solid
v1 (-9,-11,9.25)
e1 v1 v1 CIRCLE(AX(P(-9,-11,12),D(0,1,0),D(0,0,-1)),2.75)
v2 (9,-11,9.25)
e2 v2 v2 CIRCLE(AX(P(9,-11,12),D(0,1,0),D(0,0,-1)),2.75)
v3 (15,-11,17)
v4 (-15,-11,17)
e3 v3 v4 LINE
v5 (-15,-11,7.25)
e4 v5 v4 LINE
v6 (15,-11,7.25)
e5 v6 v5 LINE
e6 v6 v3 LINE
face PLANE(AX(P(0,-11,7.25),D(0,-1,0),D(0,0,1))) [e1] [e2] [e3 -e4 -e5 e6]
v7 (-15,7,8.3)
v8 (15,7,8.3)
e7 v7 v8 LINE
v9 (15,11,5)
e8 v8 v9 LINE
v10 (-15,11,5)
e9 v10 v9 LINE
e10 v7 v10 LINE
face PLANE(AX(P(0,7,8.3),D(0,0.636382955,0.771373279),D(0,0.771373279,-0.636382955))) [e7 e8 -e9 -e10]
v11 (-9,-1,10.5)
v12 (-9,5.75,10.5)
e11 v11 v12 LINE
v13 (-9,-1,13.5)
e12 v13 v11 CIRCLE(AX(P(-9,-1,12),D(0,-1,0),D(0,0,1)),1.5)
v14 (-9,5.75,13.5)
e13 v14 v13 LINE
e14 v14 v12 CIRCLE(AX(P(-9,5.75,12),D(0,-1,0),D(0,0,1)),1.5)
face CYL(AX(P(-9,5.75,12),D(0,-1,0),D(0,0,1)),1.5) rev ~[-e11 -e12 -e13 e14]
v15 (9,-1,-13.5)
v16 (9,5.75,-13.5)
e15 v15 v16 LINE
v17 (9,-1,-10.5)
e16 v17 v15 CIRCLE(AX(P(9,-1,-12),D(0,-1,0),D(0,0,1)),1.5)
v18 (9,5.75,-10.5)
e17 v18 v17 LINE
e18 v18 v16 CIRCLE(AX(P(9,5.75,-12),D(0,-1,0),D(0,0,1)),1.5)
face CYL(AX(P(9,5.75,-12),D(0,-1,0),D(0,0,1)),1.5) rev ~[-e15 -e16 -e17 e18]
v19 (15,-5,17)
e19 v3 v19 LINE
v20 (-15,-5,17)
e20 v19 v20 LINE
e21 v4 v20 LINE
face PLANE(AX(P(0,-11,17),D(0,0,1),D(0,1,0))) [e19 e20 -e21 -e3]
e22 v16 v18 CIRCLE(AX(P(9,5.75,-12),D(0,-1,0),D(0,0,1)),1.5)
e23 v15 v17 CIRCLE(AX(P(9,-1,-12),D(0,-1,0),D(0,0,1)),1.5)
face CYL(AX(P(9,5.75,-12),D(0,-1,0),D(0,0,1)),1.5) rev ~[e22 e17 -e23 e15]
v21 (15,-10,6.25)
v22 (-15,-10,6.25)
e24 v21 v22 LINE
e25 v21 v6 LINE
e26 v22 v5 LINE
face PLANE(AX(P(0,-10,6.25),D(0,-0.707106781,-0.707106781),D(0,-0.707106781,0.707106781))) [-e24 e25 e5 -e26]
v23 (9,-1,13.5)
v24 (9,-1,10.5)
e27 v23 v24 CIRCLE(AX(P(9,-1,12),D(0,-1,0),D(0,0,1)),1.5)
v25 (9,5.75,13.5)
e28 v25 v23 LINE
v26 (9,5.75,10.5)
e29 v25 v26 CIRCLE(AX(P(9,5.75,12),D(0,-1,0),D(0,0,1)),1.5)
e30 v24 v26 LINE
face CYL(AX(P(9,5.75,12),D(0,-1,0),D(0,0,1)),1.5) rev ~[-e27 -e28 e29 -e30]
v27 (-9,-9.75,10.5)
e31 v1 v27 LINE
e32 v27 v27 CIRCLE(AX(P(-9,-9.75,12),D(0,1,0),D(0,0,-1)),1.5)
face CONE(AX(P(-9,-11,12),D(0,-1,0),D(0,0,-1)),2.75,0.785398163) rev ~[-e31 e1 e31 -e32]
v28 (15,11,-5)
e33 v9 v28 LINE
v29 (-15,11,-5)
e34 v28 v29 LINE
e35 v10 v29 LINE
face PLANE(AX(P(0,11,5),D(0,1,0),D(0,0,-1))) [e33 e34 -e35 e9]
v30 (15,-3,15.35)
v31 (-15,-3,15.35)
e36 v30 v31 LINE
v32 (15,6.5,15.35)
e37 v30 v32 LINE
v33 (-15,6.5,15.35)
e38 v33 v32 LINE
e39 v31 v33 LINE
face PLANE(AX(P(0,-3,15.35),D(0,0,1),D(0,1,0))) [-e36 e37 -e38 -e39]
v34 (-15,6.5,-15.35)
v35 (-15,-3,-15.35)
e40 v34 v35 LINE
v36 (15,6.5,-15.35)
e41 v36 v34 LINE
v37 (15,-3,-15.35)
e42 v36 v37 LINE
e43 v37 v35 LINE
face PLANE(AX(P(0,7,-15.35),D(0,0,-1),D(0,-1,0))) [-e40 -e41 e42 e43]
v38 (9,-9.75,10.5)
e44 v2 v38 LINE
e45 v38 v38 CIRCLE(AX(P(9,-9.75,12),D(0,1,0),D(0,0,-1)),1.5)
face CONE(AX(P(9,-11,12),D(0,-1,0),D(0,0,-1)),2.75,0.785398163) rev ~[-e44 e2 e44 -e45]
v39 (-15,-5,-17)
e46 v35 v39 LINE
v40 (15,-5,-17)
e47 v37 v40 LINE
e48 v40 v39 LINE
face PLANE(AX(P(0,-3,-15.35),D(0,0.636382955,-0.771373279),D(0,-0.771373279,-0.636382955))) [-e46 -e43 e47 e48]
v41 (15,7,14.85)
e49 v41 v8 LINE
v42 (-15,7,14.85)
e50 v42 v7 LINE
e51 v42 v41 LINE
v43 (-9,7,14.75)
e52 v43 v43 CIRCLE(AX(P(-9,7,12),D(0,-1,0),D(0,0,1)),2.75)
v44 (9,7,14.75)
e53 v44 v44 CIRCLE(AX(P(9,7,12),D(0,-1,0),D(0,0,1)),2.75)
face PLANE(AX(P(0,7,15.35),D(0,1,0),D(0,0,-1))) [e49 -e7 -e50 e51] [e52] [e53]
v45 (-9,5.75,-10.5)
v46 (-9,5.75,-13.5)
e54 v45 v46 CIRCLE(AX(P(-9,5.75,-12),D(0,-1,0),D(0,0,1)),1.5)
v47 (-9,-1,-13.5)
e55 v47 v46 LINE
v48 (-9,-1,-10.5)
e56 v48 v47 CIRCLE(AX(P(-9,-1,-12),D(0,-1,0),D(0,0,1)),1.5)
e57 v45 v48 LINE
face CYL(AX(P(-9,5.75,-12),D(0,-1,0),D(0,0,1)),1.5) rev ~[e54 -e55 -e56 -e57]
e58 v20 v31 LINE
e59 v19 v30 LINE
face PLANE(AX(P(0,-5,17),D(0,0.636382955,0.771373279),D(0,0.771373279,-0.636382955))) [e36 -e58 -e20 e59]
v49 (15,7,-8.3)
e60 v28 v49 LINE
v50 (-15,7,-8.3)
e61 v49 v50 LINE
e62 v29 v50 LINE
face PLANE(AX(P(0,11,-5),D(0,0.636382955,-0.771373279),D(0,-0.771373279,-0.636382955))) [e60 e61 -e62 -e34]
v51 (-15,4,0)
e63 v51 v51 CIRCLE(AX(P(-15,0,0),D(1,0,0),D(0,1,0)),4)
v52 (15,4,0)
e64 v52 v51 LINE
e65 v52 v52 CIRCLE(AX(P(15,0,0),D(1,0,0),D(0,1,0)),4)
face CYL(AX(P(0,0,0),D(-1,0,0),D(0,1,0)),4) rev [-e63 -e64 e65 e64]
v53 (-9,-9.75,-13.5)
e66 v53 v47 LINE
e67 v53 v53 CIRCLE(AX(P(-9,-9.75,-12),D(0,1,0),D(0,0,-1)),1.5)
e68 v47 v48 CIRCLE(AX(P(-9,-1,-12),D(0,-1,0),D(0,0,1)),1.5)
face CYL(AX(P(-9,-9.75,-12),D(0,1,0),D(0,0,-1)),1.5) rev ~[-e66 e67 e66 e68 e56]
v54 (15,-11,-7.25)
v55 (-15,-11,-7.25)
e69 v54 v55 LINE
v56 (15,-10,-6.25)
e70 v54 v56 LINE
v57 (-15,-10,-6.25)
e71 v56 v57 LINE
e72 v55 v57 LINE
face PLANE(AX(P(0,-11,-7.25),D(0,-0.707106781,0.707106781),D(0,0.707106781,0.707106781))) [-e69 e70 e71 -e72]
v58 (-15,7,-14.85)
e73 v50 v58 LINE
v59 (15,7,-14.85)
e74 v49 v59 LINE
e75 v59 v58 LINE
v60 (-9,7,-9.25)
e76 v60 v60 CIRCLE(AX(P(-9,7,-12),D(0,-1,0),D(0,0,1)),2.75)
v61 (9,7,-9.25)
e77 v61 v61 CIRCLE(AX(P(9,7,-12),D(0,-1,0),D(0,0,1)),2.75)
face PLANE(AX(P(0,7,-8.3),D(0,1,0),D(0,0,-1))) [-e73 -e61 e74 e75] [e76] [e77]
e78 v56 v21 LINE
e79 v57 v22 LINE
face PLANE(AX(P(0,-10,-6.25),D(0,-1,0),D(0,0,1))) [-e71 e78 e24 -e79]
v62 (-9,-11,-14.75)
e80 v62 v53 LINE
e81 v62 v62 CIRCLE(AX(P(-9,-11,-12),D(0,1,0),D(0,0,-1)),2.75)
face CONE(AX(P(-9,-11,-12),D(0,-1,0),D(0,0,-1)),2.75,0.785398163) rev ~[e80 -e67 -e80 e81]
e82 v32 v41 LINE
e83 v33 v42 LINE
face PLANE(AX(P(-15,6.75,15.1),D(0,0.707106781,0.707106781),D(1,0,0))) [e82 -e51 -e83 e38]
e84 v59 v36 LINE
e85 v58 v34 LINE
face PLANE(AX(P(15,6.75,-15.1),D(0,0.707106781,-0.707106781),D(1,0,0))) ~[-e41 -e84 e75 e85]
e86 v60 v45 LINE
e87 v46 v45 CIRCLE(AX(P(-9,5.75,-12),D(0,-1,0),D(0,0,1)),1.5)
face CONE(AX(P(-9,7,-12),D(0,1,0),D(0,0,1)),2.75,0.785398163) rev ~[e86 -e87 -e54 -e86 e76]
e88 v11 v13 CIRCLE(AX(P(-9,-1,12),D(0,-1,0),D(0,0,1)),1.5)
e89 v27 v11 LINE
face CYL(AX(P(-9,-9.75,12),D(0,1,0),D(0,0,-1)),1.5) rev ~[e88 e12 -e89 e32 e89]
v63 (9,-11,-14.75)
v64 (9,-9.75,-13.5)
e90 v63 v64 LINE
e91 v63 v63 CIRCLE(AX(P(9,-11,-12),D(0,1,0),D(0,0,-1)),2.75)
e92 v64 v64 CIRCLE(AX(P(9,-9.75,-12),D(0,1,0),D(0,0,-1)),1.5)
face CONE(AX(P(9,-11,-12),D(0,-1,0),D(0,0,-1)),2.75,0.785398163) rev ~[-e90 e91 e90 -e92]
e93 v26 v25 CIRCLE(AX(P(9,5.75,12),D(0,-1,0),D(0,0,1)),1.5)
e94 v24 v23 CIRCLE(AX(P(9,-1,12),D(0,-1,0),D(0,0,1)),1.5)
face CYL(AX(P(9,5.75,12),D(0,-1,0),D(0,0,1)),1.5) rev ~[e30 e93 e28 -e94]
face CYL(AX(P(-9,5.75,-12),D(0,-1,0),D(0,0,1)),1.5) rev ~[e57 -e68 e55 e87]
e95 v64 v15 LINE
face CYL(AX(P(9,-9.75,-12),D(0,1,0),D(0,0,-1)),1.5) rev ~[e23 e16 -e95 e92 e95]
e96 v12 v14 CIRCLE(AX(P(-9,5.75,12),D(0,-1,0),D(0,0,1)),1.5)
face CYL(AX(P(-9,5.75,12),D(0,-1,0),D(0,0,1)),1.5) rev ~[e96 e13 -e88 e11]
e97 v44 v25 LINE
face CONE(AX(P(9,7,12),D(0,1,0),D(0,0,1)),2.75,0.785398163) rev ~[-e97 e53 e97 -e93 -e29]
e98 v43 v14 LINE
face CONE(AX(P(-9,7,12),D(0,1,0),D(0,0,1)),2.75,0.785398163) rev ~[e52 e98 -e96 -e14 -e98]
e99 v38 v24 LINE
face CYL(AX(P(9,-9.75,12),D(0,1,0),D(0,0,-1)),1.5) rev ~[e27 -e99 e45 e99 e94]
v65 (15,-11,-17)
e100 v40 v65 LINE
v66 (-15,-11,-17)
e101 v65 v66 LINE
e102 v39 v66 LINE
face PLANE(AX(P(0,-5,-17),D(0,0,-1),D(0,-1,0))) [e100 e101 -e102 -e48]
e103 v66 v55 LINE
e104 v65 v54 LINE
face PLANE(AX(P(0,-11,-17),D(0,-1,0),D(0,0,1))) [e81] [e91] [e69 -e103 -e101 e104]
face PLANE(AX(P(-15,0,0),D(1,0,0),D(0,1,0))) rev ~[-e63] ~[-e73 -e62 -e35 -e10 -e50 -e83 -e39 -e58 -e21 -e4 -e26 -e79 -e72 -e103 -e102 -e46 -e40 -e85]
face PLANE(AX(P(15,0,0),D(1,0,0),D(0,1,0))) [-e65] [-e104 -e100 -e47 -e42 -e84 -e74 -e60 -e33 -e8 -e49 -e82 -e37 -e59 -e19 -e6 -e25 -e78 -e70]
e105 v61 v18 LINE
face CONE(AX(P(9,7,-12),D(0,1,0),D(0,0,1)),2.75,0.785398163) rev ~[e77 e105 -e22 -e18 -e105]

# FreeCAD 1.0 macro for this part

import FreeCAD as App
import Part
import Sketcher
Q = App.Units.Quantity


def edges_at(feature, points):
    """Names of the edges that pass closest to the given points."""
    edges = feature.Shape.Edges
    near = lambda p: min(range(len(edges)), key=lambda i: edges[i].distToShape(Part.Vertex(*p))[0])
    return sorted({f"Edge{near(p) + 1}" for p in points})

doc = App.newDocument("Part")
params = doc.addObject("Spreadsheet::Sheet", "Params")
for row, (alias, value) in enumerate([
    ("sketch1_diameter", "8 mm"),
    ("sketch1_width", "10 mm"),
    ("sketch1_width2", "6 mm"),
    ("sketch1_height", "12.5 mm"),
    ("sketch1_height2", "7.05 mm"),
    ("pad1_length", "30 mm"),
    ("sketch2_diameter", "3 mm"),
    ("hole_diameter", "3 mm"),
    ("hole_depth", "8 mm"),
    ("hole_csink_diameter", "5.5 mm"),
    ("sketch3_diameter", "3 mm"),
    ("hole2_diameter", "3 mm"),
    ("hole2_csink_diameter", "5.5 mm"),
    ("chamfer_size", "0.5 mm"),
], start=1):
    params.set(f"A{row}", alias)
    params.set(f"B{row}", "=" + value)
    params.setAlias(f"B{row}", alias)

body = doc.addObject("PartDesign::Body", "Body")

# Sketch on YZ plane
sketch1 = doc.addObject("Sketcher::SketchObject", "Sketch")
body.addObject(sketch1)
sketch1.AttachmentSupport = (doc.YZ_Plane, [""])
sketch1.MapMode = "FlatFace"
sketch1.addGeometry([
    Part.LineSegment(App.Vector(11, -5, 0), App.Vector(11, 5, 0)),  # 0
    Part.LineSegment(App.Vector(11, 5, 0), App.Vector(7, 8.3, 0)),  # 1
    Part.LineSegment(App.Vector(7, 8.3, 0), App.Vector(7, 15.3, 0)),  # 2
    Part.LineSegment(App.Vector(7, 15.3, 0), App.Vector(-3, 15.3, 0)),  # 3
    Part.LineSegment(App.Vector(-3, 15.3, 0), App.Vector(-5, 17, 0)),  # 4
    Part.LineSegment(App.Vector(-5, 17, 0), App.Vector(-11, 17, 0)),  # 5
    Part.LineSegment(App.Vector(-11, 17, 0), App.Vector(-11, 7.2, 0)),  # 6
    Part.LineSegment(App.Vector(-11, 7.2, 0), App.Vector(-10, 6.2, 0)),  # 7
    Part.LineSegment(App.Vector(-10, 6.2, 0), App.Vector(-10, -6.2, 0)),  # 8
    Part.LineSegment(App.Vector(-10, -6.2, 0), App.Vector(-11, -7.2, 0)),  # 9
    Part.LineSegment(App.Vector(-11, -7.2, 0), App.Vector(-11, -17, 0)),  # 10
    Part.LineSegment(App.Vector(-11, -17, 0), App.Vector(-5, -17, 0)),  # 11
    Part.LineSegment(App.Vector(-5, -17, 0), App.Vector(-3, -15.3, 0)),  # 12
    Part.LineSegment(App.Vector(-3, -15.3, 0), App.Vector(7, -15.3, 0)),  # 13
    Part.LineSegment(App.Vector(7, -15.3, 0), App.Vector(7, -8.3, 0)),  # 14
    Part.LineSegment(App.Vector(7, -8.3, 0), App.Vector(11, -5, 0)),  # 15
    Part.Circle(App.Vector(0, 0, 0), App.Vector(0, 0, 1), 4),  # 16
], False)
sketch1.addConstraint([
    Sketcher.Constraint("Coincident", 0, 2, 1, 1),
    Sketcher.Constraint("Coincident", 1, 2, 2, 1),
    Sketcher.Constraint("Coincident", 2, 2, 3, 1),
    Sketcher.Constraint("Coincident", 3, 2, 4, 1),
    Sketcher.Constraint("Coincident", 4, 2, 5, 1),
    Sketcher.Constraint("Coincident", 5, 2, 6, 1),
    Sketcher.Constraint("Coincident", 6, 2, 7, 1),
    Sketcher.Constraint("Coincident", 7, 2, 8, 1),
    Sketcher.Constraint("Coincident", 8, 2, 9, 1),
    Sketcher.Constraint("Coincident", 9, 2, 10, 1),
    Sketcher.Constraint("Coincident", 10, 2, 11, 1),
    Sketcher.Constraint("Coincident", 11, 2, 12, 1),
    Sketcher.Constraint("Coincident", 12, 2, 13, 1),
    Sketcher.Constraint("Coincident", 13, 2, 14, 1),
    Sketcher.Constraint("Coincident", 14, 2, 15, 1),
    Sketcher.Constraint("Coincident", 15, 2, 0, 1),
    Sketcher.Constraint("Vertical", 0),
    Sketcher.Constraint("Vertical", 2),
    Sketcher.Constraint("Horizontal", 3),
    Sketcher.Constraint("Horizontal", 5),
    Sketcher.Constraint("Vertical", 6),
    Sketcher.Constraint("Vertical", 8),
    Sketcher.Constraint("Vertical", 10),
    Sketcher.Constraint("Horizontal", 11),
    Sketcher.Constraint("Horizontal", 13),
    Sketcher.Constraint("Vertical", 14),
    Sketcher.Constraint("Coincident", 16, 3, -1, 1),
    Sketcher.Constraint("Symmetric", 6, 2, 9, 2, -1),
    Sketcher.Constraint("Symmetric", 4, 2, 11, 2, -1),
    Sketcher.Constraint("Symmetric", 3, 2, 12, 2, -1),
    Sketcher.Constraint("Symmetric", 1, 2, 14, 2, -1),
    Sketcher.Constraint("Parallel", 1, 4),
    Sketcher.Constraint("Perpendicular", 7, 9),
    Sketcher.Constraint("Parallel", 12, 15),
    Sketcher.Constraint("Equal", 13, 0),
    Sketcher.Constraint("Equal", 7, 9),
    Sketcher.Constraint("Diameter", 16, Q("8 mm")),
    Sketcher.Constraint("DistanceX", 3, 2, 3, 1, Q("10 mm")),
    Sketcher.Constraint("DistanceX", 5, 2, 5, 1, Q("6 mm")),
    Sketcher.Constraint("DistanceY", 8, 2, 8, 1, Q("12.5 mm")),
    Sketcher.Constraint("DistanceX", -1, 1, 0, 2, Q("11 mm")),
    Sketcher.Constraint("DistanceX", 5, 2, -1, 1, Q("11 mm")),
    Sketcher.Constraint("DistanceX", 7, 2, -1, 1, Q("10 mm")),
    Sketcher.Constraint("DistanceX", 5, 2, 3, 2, Q("8 mm")),
    Sketcher.Constraint("DistanceY", -1, 1, 4, 2, Q("17 mm")),
    Sketcher.Constraint("DistanceY", 2, 1, 2, 2, Q("7.05 mm")),
])
sketch1.setExpression("Constraints[36]", "Params.sketch1_diameter")
sketch1.setExpression("Constraints[37]", "Params.sketch1_width")
sketch1.setExpression("Constraints[38]", "Params.sketch1_width2")
sketch1.setExpression("Constraints[39]", "Params.sketch1_height")
sketch1.setExpression("Constraints[45]", "Params.sketch1_height2")
pad1 = doc.addObject("PartDesign::Pad", "Pad")
body.addObject(pad1)
pad1.Profile = sketch1
pad1.setExpression("Length", "Params.pad1_length")
pad1.Midplane = True

# Sketch on XZ plane
sketch2 = doc.addObject("Sketcher::SketchObject", "Sketch001")
body.addObject(sketch2)
sketch2.AttachmentSupport = (doc.XZ_Plane, [""])
sketch2.MapMode = "FlatFace"
sketch2.AttachmentOffset = App.Placement(App.Vector(0, 0, -7), App.Rotation())
sketch2.addGeometry([
    Part.Circle(App.Vector(-9, 12, 0), App.Vector(0, 0, 1), 1.5),
    Part.Circle(App.Vector(-9, -12, 0), App.Vector(0, 0, 1), 1.5),
    Part.Circle(App.Vector(9, -12, 0), App.Vector(0, 0, 1), 1.5),
    Part.Circle(App.Vector(9, 12, 0), App.Vector(0, 0, 1), 1.5),
], False)
sketch2.addConstraint([
    Sketcher.Constraint("Equal", 0, 1),
    Sketcher.Constraint("Equal", 1, 2),
    Sketcher.Constraint("Equal", 2, 3),
    Sketcher.Constraint("Symmetric", 0, 3, 2, 3, -1, 1),
    Sketcher.Constraint("Symmetric", 1, 3, 3, 3, -1, 1),
    Sketcher.Constraint("Symmetric", 1, 3, 2, 3, -2),
    Sketcher.Constraint("Diameter", 0, Q("3 mm")),
    Sketcher.Constraint("DistanceX", 0, 3, -1, 1, Q("9 mm")),
    Sketcher.Constraint("DistanceY", -1, 1, 0, 3, Q("12 mm")),
])
sketch2.setExpression("Constraints[6]", "Params.sketch2_diameter")
doc.recompute()
hole = doc.addObject("PartDesign::Hole", "Hole")
body.addObject(hole)
hole.Profile = sketch2
hole.ThreadType = "None"
hole.setExpression("Diameter", "Params.hole_diameter")
hole.DepthType = "Dimension"
hole.setExpression("Depth", "Params.hole_depth")
hole.DrillPoint = "Flat"
hole.HoleCutType = "Countersink"
hole.setExpression("HoleCutDiameter", "Params.hole_csink_diameter")
hole.HoleCutCountersinkAngle = 90
hole.Reversed = True

# Sketch on XZ plane
sketch3 = doc.addObject("Sketcher::SketchObject", "Sketch002")
body.addObject(sketch3)
sketch3.AttachmentSupport = (doc.XZ_Plane, [""])
sketch3.MapMode = "FlatFace"
sketch3.AttachmentOffset = App.Placement(App.Vector(0, 0, 11), App.Rotation())
sketch3.addGeometry([
    Part.Circle(App.Vector(-9, 12, 0), App.Vector(0, 0, 1), 1.5),
    Part.Circle(App.Vector(9, 12, 0), App.Vector(0, 0, 1), 1.5),
    Part.Circle(App.Vector(-9, -12, 0), App.Vector(0, 0, 1), 1.5),
    Part.Circle(App.Vector(9, -12, 0), App.Vector(0, 0, 1), 1.5),
], False)
sketch3.addConstraint([
    Sketcher.Constraint("Equal", 0, 1),
    Sketcher.Constraint("Equal", 1, 2),
    Sketcher.Constraint("Equal", 2, 3),
    Sketcher.Constraint("Symmetric", 1, 3, 2, 3, -1, 1),
    Sketcher.Constraint("Symmetric", 0, 3, 3, 3, -1, 1),
    Sketcher.Constraint("Symmetric", 0, 3, 1, 3, -2),
    Sketcher.Constraint("Diameter", 0, Q("3 mm")),
    Sketcher.Constraint("DistanceX", 0, 3, -1, 1, Q("9 mm")),
    Sketcher.Constraint("DistanceY", -1, 1, 0, 3, Q("12 mm")),
])
sketch3.setExpression("Constraints[6]", "Params.sketch3_diameter")
doc.recompute()
hole2 = doc.addObject("PartDesign::Hole", "Hole001")
body.addObject(hole2)
hole2.Profile = sketch3
hole2.ThreadType = "None"
hole2.setExpression("Diameter", "Params.hole2_diameter")
hole2.DepthType = "ThroughAll"
hole2.HoleCutType = "Countersink"
hole2.setExpression("HoleCutDiameter", "Params.hole2_csink_diameter")
hole2.HoleCutCountersinkAngle = 90
doc.recompute()

chamfer = doc.addObject("PartDesign::Chamfer", "Chamfer")
body.addObject(chamfer)
chamfer.Base = (hole2, edges_at(hole2, [(0, 7, 15.35), (0, 7, -15.35)]))
chamfer.setExpression("Size", "Params.chamfer_size")

doc.recompute()
